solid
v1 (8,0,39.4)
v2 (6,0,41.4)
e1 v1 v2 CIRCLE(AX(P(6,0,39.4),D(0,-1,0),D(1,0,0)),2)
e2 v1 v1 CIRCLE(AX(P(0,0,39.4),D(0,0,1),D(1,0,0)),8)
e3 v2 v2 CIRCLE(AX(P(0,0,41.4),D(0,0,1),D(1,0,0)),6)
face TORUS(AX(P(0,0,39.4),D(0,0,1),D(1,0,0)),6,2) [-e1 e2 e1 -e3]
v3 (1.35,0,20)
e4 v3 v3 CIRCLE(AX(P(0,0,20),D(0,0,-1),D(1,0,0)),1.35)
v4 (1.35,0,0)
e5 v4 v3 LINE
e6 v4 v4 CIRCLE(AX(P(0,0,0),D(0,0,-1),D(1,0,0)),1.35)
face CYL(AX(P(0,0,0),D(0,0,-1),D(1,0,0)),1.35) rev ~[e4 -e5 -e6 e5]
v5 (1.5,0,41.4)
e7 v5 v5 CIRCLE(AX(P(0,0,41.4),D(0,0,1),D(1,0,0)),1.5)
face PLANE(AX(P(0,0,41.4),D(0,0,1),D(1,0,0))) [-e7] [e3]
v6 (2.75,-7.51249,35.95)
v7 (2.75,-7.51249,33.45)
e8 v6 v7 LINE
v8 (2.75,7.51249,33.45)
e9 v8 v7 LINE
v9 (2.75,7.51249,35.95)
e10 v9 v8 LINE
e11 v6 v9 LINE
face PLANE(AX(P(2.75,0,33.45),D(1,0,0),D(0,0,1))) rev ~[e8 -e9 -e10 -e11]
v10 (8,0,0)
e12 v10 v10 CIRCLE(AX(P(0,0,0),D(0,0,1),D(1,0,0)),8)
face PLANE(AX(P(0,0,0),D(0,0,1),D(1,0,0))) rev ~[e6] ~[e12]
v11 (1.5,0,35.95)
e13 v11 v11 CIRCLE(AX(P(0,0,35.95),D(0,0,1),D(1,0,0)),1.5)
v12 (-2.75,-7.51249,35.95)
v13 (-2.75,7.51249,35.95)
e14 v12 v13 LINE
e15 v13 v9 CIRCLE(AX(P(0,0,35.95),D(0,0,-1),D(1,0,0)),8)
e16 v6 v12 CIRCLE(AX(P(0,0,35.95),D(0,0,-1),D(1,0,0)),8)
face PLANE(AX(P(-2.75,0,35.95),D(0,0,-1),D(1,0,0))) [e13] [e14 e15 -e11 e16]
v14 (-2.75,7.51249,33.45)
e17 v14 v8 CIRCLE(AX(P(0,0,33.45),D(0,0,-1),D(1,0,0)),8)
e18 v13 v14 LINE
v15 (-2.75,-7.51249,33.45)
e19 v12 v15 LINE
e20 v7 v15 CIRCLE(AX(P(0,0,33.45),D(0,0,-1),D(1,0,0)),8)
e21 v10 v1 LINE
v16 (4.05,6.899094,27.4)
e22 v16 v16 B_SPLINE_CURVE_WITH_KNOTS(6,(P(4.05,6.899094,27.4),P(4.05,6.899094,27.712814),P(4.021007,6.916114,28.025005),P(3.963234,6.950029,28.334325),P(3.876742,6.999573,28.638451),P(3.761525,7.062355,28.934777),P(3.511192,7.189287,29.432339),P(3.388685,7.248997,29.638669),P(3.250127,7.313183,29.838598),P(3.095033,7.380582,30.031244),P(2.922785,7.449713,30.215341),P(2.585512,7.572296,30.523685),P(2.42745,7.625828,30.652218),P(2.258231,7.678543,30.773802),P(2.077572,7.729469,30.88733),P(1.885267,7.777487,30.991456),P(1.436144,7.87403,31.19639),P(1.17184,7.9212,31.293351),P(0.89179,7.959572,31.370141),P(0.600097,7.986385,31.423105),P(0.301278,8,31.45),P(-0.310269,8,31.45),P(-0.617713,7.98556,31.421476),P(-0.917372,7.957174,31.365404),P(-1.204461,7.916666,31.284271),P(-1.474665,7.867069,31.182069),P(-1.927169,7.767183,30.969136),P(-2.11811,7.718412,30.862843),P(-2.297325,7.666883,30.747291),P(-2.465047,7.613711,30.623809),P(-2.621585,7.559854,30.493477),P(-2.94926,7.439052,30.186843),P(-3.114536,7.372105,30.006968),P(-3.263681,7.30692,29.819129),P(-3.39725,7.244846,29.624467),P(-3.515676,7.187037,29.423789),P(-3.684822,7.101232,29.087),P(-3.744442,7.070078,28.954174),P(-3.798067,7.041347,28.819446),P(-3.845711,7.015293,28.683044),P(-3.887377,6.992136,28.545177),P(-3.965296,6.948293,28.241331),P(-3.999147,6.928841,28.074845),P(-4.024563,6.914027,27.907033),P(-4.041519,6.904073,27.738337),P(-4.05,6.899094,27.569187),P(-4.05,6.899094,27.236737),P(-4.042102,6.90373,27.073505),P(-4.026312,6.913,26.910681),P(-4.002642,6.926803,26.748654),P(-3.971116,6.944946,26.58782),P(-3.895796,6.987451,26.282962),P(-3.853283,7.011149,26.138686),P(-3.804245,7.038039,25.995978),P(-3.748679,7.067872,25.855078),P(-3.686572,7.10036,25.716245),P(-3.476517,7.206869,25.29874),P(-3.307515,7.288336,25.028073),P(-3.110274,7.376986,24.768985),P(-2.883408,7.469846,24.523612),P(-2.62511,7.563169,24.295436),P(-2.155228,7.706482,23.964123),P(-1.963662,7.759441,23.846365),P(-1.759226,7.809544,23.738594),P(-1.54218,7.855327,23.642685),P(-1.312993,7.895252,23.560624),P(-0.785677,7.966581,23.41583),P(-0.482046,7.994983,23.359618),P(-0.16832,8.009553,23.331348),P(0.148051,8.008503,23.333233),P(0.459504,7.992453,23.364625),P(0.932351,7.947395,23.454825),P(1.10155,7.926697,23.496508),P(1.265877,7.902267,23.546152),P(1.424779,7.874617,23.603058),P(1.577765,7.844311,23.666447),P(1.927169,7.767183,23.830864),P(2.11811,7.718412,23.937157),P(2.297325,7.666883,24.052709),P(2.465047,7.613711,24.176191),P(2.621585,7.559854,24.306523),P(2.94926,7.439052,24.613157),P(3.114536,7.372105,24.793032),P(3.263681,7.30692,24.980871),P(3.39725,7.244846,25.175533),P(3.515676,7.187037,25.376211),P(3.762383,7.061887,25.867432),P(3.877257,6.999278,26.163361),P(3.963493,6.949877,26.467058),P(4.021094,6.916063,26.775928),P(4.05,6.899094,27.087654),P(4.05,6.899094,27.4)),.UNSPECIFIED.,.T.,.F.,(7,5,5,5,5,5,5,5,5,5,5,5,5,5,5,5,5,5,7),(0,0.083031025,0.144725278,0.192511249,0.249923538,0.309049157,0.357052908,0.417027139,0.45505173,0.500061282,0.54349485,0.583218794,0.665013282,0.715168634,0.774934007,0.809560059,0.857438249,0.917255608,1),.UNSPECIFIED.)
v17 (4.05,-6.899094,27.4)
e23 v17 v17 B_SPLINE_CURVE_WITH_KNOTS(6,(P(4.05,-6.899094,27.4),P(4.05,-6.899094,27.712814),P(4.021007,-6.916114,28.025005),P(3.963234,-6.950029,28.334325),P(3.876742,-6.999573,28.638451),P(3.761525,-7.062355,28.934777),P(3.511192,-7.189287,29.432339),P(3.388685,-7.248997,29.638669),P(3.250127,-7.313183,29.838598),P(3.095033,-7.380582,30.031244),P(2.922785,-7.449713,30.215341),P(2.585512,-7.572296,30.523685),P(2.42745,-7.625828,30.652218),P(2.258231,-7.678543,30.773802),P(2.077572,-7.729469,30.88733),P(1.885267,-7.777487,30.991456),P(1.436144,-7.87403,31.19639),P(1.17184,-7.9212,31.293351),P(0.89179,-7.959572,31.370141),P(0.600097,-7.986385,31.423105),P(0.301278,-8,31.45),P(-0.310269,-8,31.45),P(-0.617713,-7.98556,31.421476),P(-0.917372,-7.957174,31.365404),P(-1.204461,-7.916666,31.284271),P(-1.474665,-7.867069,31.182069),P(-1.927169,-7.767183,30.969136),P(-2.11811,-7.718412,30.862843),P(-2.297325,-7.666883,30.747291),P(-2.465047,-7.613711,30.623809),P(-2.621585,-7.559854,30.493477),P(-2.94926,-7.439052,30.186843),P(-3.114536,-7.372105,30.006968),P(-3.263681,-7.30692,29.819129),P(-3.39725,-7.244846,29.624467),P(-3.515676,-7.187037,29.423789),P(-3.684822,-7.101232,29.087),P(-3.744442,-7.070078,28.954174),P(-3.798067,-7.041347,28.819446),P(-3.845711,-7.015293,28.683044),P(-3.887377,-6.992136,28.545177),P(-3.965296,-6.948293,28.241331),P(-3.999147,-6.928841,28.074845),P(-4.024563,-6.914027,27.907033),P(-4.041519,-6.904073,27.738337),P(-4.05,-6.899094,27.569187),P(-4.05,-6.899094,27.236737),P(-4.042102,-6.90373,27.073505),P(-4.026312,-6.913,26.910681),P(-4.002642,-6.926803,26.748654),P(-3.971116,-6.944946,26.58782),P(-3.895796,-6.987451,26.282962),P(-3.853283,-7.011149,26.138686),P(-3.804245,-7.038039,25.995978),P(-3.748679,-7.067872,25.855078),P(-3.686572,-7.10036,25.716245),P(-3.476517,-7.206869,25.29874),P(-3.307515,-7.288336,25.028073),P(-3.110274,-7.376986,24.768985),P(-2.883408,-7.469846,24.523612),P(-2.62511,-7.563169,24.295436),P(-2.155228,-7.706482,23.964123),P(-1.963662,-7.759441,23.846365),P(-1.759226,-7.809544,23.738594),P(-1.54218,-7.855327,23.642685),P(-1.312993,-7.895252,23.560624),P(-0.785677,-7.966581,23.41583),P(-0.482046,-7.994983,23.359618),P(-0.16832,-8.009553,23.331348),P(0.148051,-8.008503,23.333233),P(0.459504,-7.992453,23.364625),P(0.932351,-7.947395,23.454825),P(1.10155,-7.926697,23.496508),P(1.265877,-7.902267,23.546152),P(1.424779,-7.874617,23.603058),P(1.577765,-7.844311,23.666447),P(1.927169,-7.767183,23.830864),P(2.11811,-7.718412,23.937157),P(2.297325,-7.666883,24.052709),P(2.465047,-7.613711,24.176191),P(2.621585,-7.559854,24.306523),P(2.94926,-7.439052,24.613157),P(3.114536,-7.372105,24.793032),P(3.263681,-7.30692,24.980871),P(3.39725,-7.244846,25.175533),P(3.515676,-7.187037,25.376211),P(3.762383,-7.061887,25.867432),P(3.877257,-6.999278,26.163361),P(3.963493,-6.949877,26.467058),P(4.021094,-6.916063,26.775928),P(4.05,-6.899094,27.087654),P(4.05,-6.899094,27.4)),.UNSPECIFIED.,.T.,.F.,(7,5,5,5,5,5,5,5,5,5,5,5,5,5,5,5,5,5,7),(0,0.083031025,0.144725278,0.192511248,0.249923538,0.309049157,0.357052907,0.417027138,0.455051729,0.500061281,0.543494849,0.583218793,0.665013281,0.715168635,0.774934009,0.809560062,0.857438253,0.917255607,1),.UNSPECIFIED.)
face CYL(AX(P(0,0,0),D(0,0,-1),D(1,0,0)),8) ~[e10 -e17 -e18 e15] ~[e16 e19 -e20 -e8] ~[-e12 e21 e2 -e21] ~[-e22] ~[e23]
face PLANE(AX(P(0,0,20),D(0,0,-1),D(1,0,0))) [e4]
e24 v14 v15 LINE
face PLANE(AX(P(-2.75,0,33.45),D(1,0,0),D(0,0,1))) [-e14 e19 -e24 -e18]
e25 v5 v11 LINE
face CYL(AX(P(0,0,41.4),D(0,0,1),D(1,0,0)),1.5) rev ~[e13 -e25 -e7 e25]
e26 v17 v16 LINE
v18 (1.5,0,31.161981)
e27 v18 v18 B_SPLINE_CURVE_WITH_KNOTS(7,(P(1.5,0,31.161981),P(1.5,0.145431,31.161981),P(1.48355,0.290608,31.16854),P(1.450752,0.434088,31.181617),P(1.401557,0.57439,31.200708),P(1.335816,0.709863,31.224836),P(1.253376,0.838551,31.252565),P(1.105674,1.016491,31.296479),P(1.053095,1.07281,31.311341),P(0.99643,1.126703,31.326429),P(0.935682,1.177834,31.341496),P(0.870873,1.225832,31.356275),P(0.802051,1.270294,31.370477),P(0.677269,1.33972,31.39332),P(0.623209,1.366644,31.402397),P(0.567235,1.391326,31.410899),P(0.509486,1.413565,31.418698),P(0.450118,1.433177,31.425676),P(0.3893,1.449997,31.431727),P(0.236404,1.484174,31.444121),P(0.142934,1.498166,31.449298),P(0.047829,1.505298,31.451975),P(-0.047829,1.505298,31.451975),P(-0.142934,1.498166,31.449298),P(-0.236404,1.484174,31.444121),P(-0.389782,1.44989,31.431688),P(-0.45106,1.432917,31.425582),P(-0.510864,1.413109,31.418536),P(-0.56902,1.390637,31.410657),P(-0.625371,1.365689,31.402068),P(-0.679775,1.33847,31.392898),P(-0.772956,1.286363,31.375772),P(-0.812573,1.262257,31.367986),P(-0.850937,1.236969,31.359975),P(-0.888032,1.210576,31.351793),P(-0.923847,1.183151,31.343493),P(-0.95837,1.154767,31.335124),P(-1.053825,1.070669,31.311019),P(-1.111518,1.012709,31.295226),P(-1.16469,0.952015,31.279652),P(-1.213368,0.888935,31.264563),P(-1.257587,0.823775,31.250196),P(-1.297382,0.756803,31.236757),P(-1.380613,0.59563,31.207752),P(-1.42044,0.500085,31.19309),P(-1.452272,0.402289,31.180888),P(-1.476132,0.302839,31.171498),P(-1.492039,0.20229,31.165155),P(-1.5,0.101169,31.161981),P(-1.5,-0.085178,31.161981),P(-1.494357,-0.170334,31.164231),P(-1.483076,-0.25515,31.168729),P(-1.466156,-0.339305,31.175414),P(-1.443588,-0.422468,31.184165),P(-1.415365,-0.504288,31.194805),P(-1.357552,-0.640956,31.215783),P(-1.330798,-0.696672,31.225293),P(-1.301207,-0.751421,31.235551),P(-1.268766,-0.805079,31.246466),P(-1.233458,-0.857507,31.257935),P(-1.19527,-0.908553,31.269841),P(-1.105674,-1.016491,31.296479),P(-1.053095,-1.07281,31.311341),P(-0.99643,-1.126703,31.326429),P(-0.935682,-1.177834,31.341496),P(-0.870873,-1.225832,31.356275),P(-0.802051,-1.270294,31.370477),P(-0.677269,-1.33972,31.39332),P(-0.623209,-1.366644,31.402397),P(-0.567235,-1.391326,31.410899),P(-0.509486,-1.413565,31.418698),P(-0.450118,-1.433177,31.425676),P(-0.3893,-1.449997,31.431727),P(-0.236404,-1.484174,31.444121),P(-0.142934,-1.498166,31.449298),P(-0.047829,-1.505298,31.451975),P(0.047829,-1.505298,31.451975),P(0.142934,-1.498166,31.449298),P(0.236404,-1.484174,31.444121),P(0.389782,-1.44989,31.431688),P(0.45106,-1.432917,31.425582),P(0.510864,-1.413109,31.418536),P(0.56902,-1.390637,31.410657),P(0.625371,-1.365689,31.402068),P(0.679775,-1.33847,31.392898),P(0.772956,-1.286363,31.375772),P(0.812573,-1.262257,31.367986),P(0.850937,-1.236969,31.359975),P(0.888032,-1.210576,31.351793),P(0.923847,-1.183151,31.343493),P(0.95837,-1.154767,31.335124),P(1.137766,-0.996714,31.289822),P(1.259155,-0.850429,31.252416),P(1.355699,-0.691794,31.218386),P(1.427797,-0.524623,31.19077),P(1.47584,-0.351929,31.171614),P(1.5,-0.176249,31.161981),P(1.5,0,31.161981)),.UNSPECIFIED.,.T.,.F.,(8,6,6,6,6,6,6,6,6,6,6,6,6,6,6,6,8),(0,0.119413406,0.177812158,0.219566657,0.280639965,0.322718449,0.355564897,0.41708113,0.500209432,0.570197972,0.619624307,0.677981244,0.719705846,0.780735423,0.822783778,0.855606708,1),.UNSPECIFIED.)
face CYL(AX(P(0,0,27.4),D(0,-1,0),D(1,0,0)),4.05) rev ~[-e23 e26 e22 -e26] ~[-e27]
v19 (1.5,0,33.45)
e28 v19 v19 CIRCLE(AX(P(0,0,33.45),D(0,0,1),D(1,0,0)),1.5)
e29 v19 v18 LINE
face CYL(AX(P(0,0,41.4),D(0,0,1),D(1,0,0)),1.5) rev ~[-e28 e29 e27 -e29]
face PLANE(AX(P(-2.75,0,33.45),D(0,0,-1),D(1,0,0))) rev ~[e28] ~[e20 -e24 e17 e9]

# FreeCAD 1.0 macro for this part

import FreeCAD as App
import Part
import Sketcher


def edges_at(feature, points):
    """Names of the edges that pass closest to the given points."""
    edges = feature.Shape.Edges
    near = lambda p: min(range(len(edges)), key=lambda i: edges[i].distToShape(Part.Vertex(*p))[0])
    return sorted({f"Edge{near(p) + 1}" for p in points})


def add_polygon(sketch, points):
    """Adds a closed chain of lines whose ends are joined by coincident constraints."""
    first, n = sketch.GeometryCount, len(points)
    for a, b in zip(points, points[1:] + points[:1]):
        sketch.addGeometry(Part.LineSegment(App.Vector(*a, 0), App.Vector(*b, 0)), False)
    for i in range(n):
        sketch.addConstraint(Sketcher.Constraint("Coincident", first + i, 2, first + (i + 1) % n, 1))

doc = App.newDocument("Part")
body = doc.addObject("PartDesign::Body", "Body")

sketch1 = body.newObject("Sketcher::SketchObject", "Sketch")
sketch1.AttachmentSupport = (doc.getObject("XY_Plane"), [""])
sketch1.MapMode = "FlatFace"
sketch1.addGeometry(Part.Circle(App.Vector(0, 0, 0), App.Vector(0, 0, 1), 8), False)
sketch1.addConstraint([
    Sketcher.Constraint("Coincident", 0, 3, -1, 1),
    Sketcher.Constraint("Diameter", 0, 16.0),
])
pad1 = body.newObject("PartDesign::Pad", "Pad")
pad1.Profile = sketch1
pad1.Length = 41.4

sketch2 = body.newObject("Sketcher::SketchObject", "Sketch001")
sketch2.AttachmentSupport = (doc.getObject("XZ_Plane"), [""])
sketch2.MapMode = "FlatFace"
sketch2.addGeometry(Part.Circle(App.Vector(0, 27.4, 0), App.Vector(0, 0, 1), 4), False)
add_polygon(sketch2, [(-2.8, 36), (-2.8, 33.5), (2.8, 33.5), (2.8, 36)])
sketch2.addConstraint([
    Sketcher.Constraint("Vertical", 1),
    Sketcher.Constraint("Horizontal", 2),
    Sketcher.Constraint("Vertical", 3),
    Sketcher.Constraint("Horizontal", 4),
    Sketcher.Constraint("PointOnObject", 0, 3, -2),
    Sketcher.Constraint("Diameter", 0, 8.1),
    Sketcher.Constraint("DistanceX", 2, 1, 2, 2, 5.5),
    Sketcher.Constraint("DistanceY", 1, 2, 1, 1, 2.5),
    Sketcher.Constraint("DistanceY", -1, 1, 0, 3, 27.4),
    Sketcher.Constraint("DistanceX", 1, 2, -1, 1, 2.75),
    Sketcher.Constraint("DistanceY", -1, 1, 1, 2, 33.45),
])
pocket1 = body.newObject("PartDesign::Pocket", "Pocket")
pocket1.Profile = sketch2
pocket1.Length = 25
pocket1.Midplane = True

sketch3 = body.newObject("Sketcher::SketchObject", "Sketch002")
sketch3.AttachmentSupport = (doc.getObject("XY_Plane"), [""])
sketch3.MapMode = "FlatFace"
sketch3.AttachmentOffset = App.Placement(App.Vector(0, 0, 41.4), App.Rotation())
sketch3.addGeometry(Part.Circle(App.Vector(0, 0, 0), App.Vector(0, 0, 1), 1.5), False)
sketch3.addConstraint([
    Sketcher.Constraint("Coincident", 0, 3, -1, 1),
    Sketcher.Constraint("Diameter", 0, 3.0),
])
pocket2 = body.newObject("PartDesign::Pocket", "Pocket001")
pocket2.Profile = sketch3
pocket2.Length = 16

sketch4 = body.newObject("Sketcher::SketchObject", "Sketch003")
sketch4.AttachmentSupport = (doc.getObject("XY_Plane"), [""])
sketch4.MapMode = "FlatFace"
sketch4.addGeometry(Part.Circle(App.Vector(0, 0, 0), App.Vector(0, 0, 1), 1.4), False)
sketch4.addConstraint([
    Sketcher.Constraint("Coincident", 0, 3, -1, 1),
    Sketcher.Constraint("Diameter", 0, 2.7),
])
pocket3 = body.newObject("PartDesign::Pocket", "Pocket002")
pocket3.Profile = sketch4
pocket3.Length = 20
pocket3.Reversed = True
doc.recompute()

fillet = body.newObject("PartDesign::Fillet", "Fillet")
fillet.Base = (pocket3, edges_at(pocket3, [(-8, 0, 41.4)]))
fillet.Radius = 2

doc.recompute()
